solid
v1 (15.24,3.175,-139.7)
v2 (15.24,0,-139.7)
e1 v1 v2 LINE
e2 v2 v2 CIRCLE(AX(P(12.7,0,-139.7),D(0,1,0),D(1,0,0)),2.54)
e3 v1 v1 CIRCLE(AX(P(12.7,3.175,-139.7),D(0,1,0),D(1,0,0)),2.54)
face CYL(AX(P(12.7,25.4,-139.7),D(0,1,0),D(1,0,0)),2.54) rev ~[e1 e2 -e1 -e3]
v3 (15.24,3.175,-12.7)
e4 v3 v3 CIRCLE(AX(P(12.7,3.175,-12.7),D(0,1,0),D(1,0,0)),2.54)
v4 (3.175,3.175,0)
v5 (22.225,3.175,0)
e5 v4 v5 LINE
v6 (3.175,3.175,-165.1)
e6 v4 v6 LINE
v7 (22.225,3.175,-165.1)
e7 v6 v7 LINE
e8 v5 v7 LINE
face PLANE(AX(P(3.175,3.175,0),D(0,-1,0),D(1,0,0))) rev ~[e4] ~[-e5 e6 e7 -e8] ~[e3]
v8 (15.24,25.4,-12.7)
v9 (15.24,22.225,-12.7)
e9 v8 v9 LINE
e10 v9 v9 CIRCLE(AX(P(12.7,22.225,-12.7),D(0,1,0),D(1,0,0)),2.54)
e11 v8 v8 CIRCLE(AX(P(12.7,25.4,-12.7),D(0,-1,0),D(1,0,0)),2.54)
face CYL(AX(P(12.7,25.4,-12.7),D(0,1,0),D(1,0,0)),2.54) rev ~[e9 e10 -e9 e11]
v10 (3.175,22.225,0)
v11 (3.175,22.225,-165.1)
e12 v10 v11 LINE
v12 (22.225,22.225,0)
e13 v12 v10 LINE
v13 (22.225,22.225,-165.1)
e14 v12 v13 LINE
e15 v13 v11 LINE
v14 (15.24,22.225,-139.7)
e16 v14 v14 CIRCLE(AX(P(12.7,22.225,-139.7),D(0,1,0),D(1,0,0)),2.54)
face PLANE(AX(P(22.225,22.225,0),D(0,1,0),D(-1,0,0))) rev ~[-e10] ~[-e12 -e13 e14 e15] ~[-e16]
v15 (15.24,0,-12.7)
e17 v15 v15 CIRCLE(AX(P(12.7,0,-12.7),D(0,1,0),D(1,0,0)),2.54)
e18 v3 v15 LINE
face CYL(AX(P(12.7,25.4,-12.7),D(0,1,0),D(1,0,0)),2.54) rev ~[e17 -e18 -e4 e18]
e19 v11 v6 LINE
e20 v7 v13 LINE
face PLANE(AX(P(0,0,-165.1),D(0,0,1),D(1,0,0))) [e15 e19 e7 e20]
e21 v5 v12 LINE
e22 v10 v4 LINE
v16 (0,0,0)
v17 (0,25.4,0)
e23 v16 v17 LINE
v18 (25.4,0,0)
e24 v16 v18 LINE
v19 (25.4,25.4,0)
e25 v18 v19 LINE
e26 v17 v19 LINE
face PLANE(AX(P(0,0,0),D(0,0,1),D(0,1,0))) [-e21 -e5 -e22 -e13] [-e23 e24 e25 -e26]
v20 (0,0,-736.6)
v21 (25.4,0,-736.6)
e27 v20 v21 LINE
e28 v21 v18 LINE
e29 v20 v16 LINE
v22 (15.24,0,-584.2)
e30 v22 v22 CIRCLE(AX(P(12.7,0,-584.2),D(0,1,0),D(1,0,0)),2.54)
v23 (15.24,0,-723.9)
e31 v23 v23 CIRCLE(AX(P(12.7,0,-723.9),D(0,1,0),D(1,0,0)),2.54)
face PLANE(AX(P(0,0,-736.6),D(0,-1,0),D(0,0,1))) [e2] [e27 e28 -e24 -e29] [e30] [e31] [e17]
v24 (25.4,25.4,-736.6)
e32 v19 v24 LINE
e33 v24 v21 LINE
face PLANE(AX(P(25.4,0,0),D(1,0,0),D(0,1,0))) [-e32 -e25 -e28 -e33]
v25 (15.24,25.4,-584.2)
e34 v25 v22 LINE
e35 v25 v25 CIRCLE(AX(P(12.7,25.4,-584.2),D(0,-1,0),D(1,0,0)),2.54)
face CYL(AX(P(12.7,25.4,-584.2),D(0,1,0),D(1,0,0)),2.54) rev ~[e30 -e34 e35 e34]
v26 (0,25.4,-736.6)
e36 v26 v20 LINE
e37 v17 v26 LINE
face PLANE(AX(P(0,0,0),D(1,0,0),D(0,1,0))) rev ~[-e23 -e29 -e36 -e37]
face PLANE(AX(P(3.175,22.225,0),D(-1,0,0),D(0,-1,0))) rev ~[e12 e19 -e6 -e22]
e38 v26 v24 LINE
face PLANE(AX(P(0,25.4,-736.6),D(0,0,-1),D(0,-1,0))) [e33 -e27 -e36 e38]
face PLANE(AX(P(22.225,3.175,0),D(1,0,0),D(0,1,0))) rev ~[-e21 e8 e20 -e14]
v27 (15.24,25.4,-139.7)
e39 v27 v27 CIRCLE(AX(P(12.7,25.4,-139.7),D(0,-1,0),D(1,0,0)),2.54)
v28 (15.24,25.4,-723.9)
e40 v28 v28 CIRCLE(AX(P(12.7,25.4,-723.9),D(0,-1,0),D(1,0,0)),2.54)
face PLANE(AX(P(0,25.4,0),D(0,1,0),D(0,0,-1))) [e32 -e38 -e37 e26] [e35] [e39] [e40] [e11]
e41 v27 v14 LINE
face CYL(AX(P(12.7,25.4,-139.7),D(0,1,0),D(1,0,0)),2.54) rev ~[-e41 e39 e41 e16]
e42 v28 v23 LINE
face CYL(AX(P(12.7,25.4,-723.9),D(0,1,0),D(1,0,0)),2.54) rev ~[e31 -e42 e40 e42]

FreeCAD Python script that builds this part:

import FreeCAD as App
import Part
import Sketcher
from FreeCAD import Vector
Q = App.Units.Quantity

doc = App.newDocument("Part")
body = doc.addObject("PartDesign::Body", "Body")

# Sketch on YZ plane
sketch1 = body.newObject("Sketcher::SketchObject", "Sketch")
sketch1.AttachmentSupport = (doc.getObject("YZ_Plane"), [""])
sketch1.MapMode = "FlatFace"
sketch1.addGeometry([
    Part.LineSegment(Vector(25, 0, 0), Vector(0, 0, 0)),
    Part.LineSegment(Vector(0, 0, 0), Vector(0, -737, 0)),
    Part.LineSegment(Vector(0, -737, 0), Vector(25, -737, 0)),
    Part.LineSegment(Vector(25, -737, 0), Vector(25, 0, 0)),
], False)
sketch1.addConstraint([
    Sketcher.Constraint("Coincident", 0, 2, 1, 1),
    Sketcher.Constraint("Coincident", 1, 2, 2, 1),
    Sketcher.Constraint("Coincident", 2, 2, 3, 1),
    Sketcher.Constraint("Coincident", 3, 2, 0, 1),
    Sketcher.Constraint("Horizontal", 0),
    Sketcher.Constraint("Vertical", 1),
    Sketcher.Constraint("Horizontal", 2),
    Sketcher.Constraint("Vertical", 3),
    Sketcher.Constraint("Coincident", 0, 2, -1, 1),
    Sketcher.Constraint("DistanceX", 0, 2, 0, 1, Q("1 in")),
    Sketcher.Constraint("DistanceY", 1, 2, 1, 1, Q("29 in")),
])
pad1 = body.newObject("PartDesign::Pad", "Pad")
pad1.Profile = sketch1
pad1.Length = Q("1 in")

# Sketch on XY plane
sketch2 = body.newObject("Sketcher::SketchObject", "Sketch001")
sketch2.AttachmentSupport = (doc.getObject("XY_Plane"), [""])
sketch2.MapMode = "FlatFace"
sketch2.addGeometry([
    Part.LineSegment(Vector(3, 22, 0), Vector(3, 3, 0)),
    Part.LineSegment(Vector(3, 3, 0), Vector(22, 3, 0)),
    Part.LineSegment(Vector(22, 3, 0), Vector(22, 22, 0)),
    Part.LineSegment(Vector(22, 22, 0), Vector(3, 22, 0)),
], False)
sketch2.addConstraint([
    Sketcher.Constraint("Coincident", 0, 2, 1, 1),
    Sketcher.Constraint("Coincident", 1, 2, 2, 1),
    Sketcher.Constraint("Coincident", 2, 2, 3, 1),
    Sketcher.Constraint("Coincident", 3, 2, 0, 1),
    Sketcher.Constraint("Vertical", 0),
    Sketcher.Constraint("Horizontal", 1),
    Sketcher.Constraint("Vertical", 2),
    Sketcher.Constraint("Horizontal", 3),
    Sketcher.Constraint("Equal", 3, 0),
    Sketcher.Constraint("DistanceX", 1, 1, 1, 2, Q("0.75 in")),
    Sketcher.Constraint("DistanceX", -1, 1, 0, 2, Q("0.125 in")),
    Sketcher.Constraint("DistanceY", -1, 1, 0, 2, Q("0.125 in")),
])
pocket1 = body.newObject("PartDesign::Pocket", "Pocket")
pocket1.Profile = sketch2
pocket1.Length = Q("6.5 in")

# Sketch on XZ plane
sketch3 = body.newObject("Sketcher::SketchObject", "Sketch002")
sketch3.AttachmentSupport = (doc.getObject("XZ_Plane"), [""])
sketch3.MapMode = "FlatFace"
sketch3.AttachmentOffset = App.Placement(Vector(0, 0, -1 * 25.4), App.Rotation())
sketch3.addGeometry([
    Part.Circle(Vector(12.7, -12.7, 0), Vector(0, 0, 1), 2.5),
    Part.Circle(Vector(12.7, -139.7, 0), Vector(0, 0, 1), 2.5),
], False)
sketch3.addConstraint([
    Sketcher.Constraint("Equal", 0, 1),
    Sketcher.Constraint("Vertical", 0, 3, 1, 3),
    Sketcher.Constraint("Diameter", 0, Q("0.2 in")),
    Sketcher.Constraint("DistanceX", -1, 1, 0, 3, Q("0.5 in")),
    Sketcher.Constraint("DistanceY", 0, 3, -1, 1, Q("0.5 in")),
    Sketcher.Constraint("DistanceY", 1, 3, 0, 3, Q("5 in")),
])
pocket2 = body.newObject("PartDesign::Pocket", "Pocket001")
pocket2.Profile = sketch3
pocket2.Length = Q("1 in")
pocket2.Reversed = True

# Sketch on XZ plane
sketch4 = body.newObject("Sketcher::SketchObject", "Sketch003")
sketch4.AttachmentSupport = (doc.getObject("XZ_Plane"), [""])
sketch4.MapMode = "FlatFace"
sketch4.AttachmentOffset = App.Placement(Vector(0, 0, -1 * 25.4), App.Rotation())
sketch4.addGeometry([
    Part.Circle(Vector(12.7, -723.9, 0), Vector(0, 0, 1), 2.5),
    Part.Circle(Vector(12.7, -584.2, 0), Vector(0, 0, 1), 2.5),
], False)
sketch4.addConstraint([
    Sketcher.Constraint("Equal", 0, 1),
    Sketcher.Constraint("Vertical", 0, 3, 1, 3),
    Sketcher.Constraint("Diameter", 0, Q("0.2 in")),
    Sketcher.Constraint("DistanceX", -1, 1, 0, 3, Q("0.5 in")),
    Sketcher.Constraint("DistanceY", 1, 3, -1, 1, Q("23 in")),
    Sketcher.Constraint("DistanceY", 0, 3, -1, 1, Q("28.5 in")),
])
pocket3 = body.newObject("PartDesign::Pocket", "Pocket002")
pocket3.Profile = sketch4
pocket3.Length = Q("1 in")
pocket3.Reversed = True

doc.recompute()
